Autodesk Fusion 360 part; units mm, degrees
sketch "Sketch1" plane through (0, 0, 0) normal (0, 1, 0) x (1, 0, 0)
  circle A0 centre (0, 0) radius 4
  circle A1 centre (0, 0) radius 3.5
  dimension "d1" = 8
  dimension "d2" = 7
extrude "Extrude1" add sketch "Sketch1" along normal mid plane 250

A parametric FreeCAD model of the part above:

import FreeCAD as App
import Part
import Sketcher

doc = App.newDocument("Part")
body = doc.addObject("PartDesign::Body", "Body")

sketch1 = body.newObject("Sketcher::SketchObject", "Sketch")
sketch1.AttachmentSupport = (doc.getObject("XZ_Plane"), [""])
sketch1.MapMode = "FlatFace"
sketch1.addGeometry([
    Part.Circle(App.Vector(0, 0, 0), App.Vector(0, 0, 1), 4),
    Part.Circle(App.Vector(0, 0, 0), App.Vector(0, 0, 1), 3.5),
], False)
sketch1.addConstraint([
    Sketcher.Constraint("Coincident", 0, 3, -1, 1),
    Sketcher.Constraint("Coincident", 1, 3, -1, 1),
    Sketcher.Constraint("Diameter", 0, 8.0),
    Sketcher.Constraint("Diameter", 1, 7.0),
])
pad1 = body.newObject("PartDesign::Pad", "Pad")
pad1.Profile = sketch1
pad1.Length = 250
pad1.Midplane = True

doc.recompute()
